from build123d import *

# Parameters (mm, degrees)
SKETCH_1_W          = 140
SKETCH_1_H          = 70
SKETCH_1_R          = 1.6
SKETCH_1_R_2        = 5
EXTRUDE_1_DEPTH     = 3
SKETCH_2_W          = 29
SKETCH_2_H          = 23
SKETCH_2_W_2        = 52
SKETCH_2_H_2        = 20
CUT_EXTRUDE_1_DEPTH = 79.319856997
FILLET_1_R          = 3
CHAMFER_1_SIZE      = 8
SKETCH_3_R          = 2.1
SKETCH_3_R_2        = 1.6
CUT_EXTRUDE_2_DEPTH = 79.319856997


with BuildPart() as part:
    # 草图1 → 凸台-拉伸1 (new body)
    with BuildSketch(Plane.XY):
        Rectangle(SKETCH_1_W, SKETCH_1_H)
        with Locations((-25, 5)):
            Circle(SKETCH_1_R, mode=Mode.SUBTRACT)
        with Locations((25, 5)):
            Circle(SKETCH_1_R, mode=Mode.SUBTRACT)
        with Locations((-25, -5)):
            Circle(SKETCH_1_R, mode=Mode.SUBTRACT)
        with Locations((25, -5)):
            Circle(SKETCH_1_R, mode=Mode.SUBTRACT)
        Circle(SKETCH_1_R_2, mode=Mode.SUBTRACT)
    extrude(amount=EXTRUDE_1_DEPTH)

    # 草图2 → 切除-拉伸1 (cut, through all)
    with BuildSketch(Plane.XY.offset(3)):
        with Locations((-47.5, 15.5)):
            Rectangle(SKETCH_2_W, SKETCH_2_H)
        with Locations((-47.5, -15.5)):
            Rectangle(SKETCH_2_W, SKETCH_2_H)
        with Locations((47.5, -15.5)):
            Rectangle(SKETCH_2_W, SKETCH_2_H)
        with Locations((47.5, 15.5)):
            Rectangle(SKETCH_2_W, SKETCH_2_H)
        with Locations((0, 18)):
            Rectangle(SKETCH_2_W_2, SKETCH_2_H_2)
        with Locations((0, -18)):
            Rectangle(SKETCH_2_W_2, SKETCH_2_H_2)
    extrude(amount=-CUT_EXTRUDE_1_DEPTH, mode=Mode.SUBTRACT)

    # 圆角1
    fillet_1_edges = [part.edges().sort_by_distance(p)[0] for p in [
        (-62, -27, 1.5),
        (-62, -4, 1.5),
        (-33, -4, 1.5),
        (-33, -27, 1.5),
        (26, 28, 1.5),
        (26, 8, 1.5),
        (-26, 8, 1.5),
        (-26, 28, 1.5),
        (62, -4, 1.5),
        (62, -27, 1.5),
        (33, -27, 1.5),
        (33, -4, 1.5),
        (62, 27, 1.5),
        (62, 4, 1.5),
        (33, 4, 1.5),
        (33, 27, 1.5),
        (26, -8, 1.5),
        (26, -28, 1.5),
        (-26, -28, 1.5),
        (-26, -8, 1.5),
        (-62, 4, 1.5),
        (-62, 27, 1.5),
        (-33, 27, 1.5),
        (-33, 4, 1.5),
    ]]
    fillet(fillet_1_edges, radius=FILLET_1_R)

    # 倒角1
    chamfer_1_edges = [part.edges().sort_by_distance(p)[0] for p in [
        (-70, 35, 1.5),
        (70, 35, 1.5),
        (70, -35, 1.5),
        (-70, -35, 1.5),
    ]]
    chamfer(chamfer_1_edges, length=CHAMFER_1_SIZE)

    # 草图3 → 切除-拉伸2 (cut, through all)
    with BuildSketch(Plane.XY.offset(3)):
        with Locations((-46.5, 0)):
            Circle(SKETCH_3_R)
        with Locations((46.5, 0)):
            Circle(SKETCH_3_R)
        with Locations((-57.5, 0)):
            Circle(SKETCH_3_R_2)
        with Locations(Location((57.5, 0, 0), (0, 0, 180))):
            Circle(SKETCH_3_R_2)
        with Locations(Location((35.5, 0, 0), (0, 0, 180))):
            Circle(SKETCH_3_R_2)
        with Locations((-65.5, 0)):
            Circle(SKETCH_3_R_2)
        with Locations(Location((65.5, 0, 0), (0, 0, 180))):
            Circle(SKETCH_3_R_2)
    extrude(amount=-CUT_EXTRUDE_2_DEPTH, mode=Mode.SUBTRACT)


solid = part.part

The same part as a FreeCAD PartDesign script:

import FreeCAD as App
import Part
import Sketcher
Q = App.Units.Quantity


def edges_at(feature, points):
    """Names of the edges that pass closest to the given points."""
    edges = feature.Shape.Edges
    near = lambda p: min(range(len(edges)), key=lambda i: edges[i].distToShape(Part.Vertex(*p))[0])
    return sorted({f"Edge{near(p) + 1}" for p in points})

doc = App.newDocument("Part")
body = doc.addObject("PartDesign::Body", "Body")

# Sketch on XY plane
sketch1 = body.newObject("Sketcher::SketchObject", "Sketch")
sketch1.AttachmentSupport = (doc.getObject("XY_Plane"), [""])
sketch1.MapMode = "FlatFace"
sketch1.addGeometry([
    Part.LineSegment(App.Vector(-70, 35, 0), App.Vector(-70, -35, 0)),  # 0
    Part.LineSegment(App.Vector(-70, -35, 0), App.Vector(70, -35, 0)),  # 1
    Part.LineSegment(App.Vector(70, -35, 0), App.Vector(70, 35, 0)),  # 2
    Part.LineSegment(App.Vector(70, 35, 0), App.Vector(-70, 35, 0)),  # 3
    Part.Circle(App.Vector(-25, -5, 0), App.Vector(0, 0, 1), 1.6),  # 4
    Part.Circle(App.Vector(25, -5, 0), App.Vector(0, 0, 1), 1.6),  # 5
    Part.Circle(App.Vector(-25, 5, 0), App.Vector(0, 0, 1), 1.6),  # 6
    Part.Circle(App.Vector(0, 0, 0), App.Vector(0, 0, 1), 5),  # 7
    Part.Circle(App.Vector(25, 5, 0), App.Vector(0, 0, 1), 1.6),  # 8
], False)
sketch1.addConstraint([
    Sketcher.Constraint("Coincident", 0, 2, 1, 1),
    Sketcher.Constraint("Coincident", 1, 2, 2, 1),
    Sketcher.Constraint("Coincident", 2, 2, 3, 1),
    Sketcher.Constraint("Coincident", 3, 2, 0, 1),
    Sketcher.Constraint("Vertical", 0),
    Sketcher.Constraint("Horizontal", 1),
    Sketcher.Constraint("Vertical", 2),
    Sketcher.Constraint("Horizontal", 3),
    Sketcher.Constraint("Coincident", 7, 3, -1, 1),
    Sketcher.Constraint("Equal", 4, 5),
    Sketcher.Constraint("Equal", 5, 6),
    Sketcher.Constraint("Equal", 6, 8),
    Sketcher.Constraint("Symmetric", 5, 3, 6, 3, -1, 1),
    Sketcher.Constraint("Symmetric", 4, 3, 8, 3, -1, 1),
    Sketcher.Constraint("Symmetric", 0, 2, 2, 2, -1, 1),
    Sketcher.Constraint("Symmetric", 4, 3, 5, 3, -2),
    Sketcher.Constraint("Diameter", 7, Q("10 mm")),
    Sketcher.Constraint("Diameter", 4, Q("3.2 mm")),
    Sketcher.Constraint("DistanceX", 1, 1, 1, 2, Q("140 mm")),
    Sketcher.Constraint("DistanceY", 0, 2, 0, 1, Q("70 mm")),
    Sketcher.Constraint("DistanceX", 4, 3, -1, 1, Q("25 mm")),
    Sketcher.Constraint("DistanceY", 4, 3, -1, 1, Q("5 mm")),
])
pad1 = body.newObject("PartDesign::Pad", "Pad")
pad1.Profile = sketch1
pad1.Length = 3

# Sketch on XY plane
sketch2 = body.newObject("Sketcher::SketchObject", "Sketch001")
sketch2.AttachmentSupport = (doc.getObject("XY_Plane"), [""])
sketch2.MapMode = "FlatFace"
sketch2.AttachmentOffset = App.Placement(App.Vector(0, 0, 3), App.Rotation())
sketch2.addGeometry([
    Part.LineSegment(App.Vector(-62, 27, 0), App.Vector(-62, 4, 0)),  # 0
    Part.LineSegment(App.Vector(-62, 4, 0), App.Vector(-33, 4, 0)),  # 1
    Part.LineSegment(App.Vector(-33, 4, 0), App.Vector(-33, 27, 0)),  # 2
    Part.LineSegment(App.Vector(-33, 27, 0), App.Vector(-62, 27, 0)),  # 3
    Part.LineSegment(App.Vector(-62, -4, 0), App.Vector(-62, -27, 0)),  # 4
    Part.LineSegment(App.Vector(-62, -27, 0), App.Vector(-33, -27, 0)),  # 5
    Part.LineSegment(App.Vector(-33, -27, 0), App.Vector(-33, -4, 0)),  # 6
    Part.LineSegment(App.Vector(-33, -4, 0), App.Vector(-62, -4, 0)),  # 7
    Part.LineSegment(App.Vector(33, -4, 0), App.Vector(33, -27, 0)),  # 8
    Part.LineSegment(App.Vector(33, -27, 0), App.Vector(62, -27, 0)),  # 9
    Part.LineSegment(App.Vector(62, -27, 0), App.Vector(62, -4, 0)),  # 10
    Part.LineSegment(App.Vector(62, -4, 0), App.Vector(33, -4, 0)),  # 11
    Part.LineSegment(App.Vector(33, 27, 0), App.Vector(33, 4, 0)),  # 12
    Part.LineSegment(App.Vector(33, 4, 0), App.Vector(62, 4, 0)),  # 13
    Part.LineSegment(App.Vector(62, 4, 0), App.Vector(62, 27, 0)),  # 14
    Part.LineSegment(App.Vector(62, 27, 0), App.Vector(33, 27, 0)),  # 15
    Part.LineSegment(App.Vector(-26, 28, 0), App.Vector(-26, 8, 0)),  # 16
    Part.LineSegment(App.Vector(-26, 8, 0), App.Vector(26, 8, 0)),  # 17
    Part.LineSegment(App.Vector(26, 8, 0), App.Vector(26, 28, 0)),  # 18
    Part.LineSegment(App.Vector(26, 28, 0), App.Vector(-26, 28, 0)),  # 19
    Part.LineSegment(App.Vector(-26, -8, 0), App.Vector(-26, -28, 0)),  # 20
    Part.LineSegment(App.Vector(-26, -28, 0), App.Vector(26, -28, 0)),  # 21
    Part.LineSegment(App.Vector(26, -28, 0), App.Vector(26, -8, 0)),  # 22
    Part.LineSegment(App.Vector(26, -8, 0), App.Vector(-26, -8, 0)),  # 23
], False)
sketch2.addConstraint([
    Sketcher.Constraint("Coincident", 0, 2, 1, 1),
    Sketcher.Constraint("Coincident", 1, 2, 2, 1),
    Sketcher.Constraint("Coincident", 2, 2, 3, 1),
    Sketcher.Constraint("Coincident", 3, 2, 0, 1),
    Sketcher.Constraint("Coincident", 4, 2, 5, 1),
    Sketcher.Constraint("Coincident", 5, 2, 6, 1),
    Sketcher.Constraint("Coincident", 6, 2, 7, 1),
    Sketcher.Constraint("Coincident", 7, 2, 4, 1),
    Sketcher.Constraint("Coincident", 8, 2, 9, 1),
    Sketcher.Constraint("Coincident", 9, 2, 10, 1),
    Sketcher.Constraint("Coincident", 10, 2, 11, 1),
    Sketcher.Constraint("Coincident", 11, 2, 8, 1),
    Sketcher.Constraint("Coincident", 12, 2, 13, 1),
    Sketcher.Constraint("Coincident", 13, 2, 14, 1),
    Sketcher.Constraint("Coincident", 14, 2, 15, 1),
    Sketcher.Constraint("Coincident", 15, 2, 12, 1),
    Sketcher.Constraint("Coincident", 16, 2, 17, 1),
    Sketcher.Constraint("Coincident", 17, 2, 18, 1),
    Sketcher.Constraint("Coincident", 18, 2, 19, 1),
    Sketcher.Constraint("Coincident", 19, 2, 16, 1),
    Sketcher.Constraint("Coincident", 20, 2, 21, 1),
    Sketcher.Constraint("Coincident", 21, 2, 22, 1),
    Sketcher.Constraint("Coincident", 22, 2, 23, 1),
    Sketcher.Constraint("Coincident", 23, 2, 20, 1),
    Sketcher.Constraint("Vertical", 0),
    Sketcher.Constraint("Horizontal", 1),
    Sketcher.Constraint("Vertical", 2),
    Sketcher.Constraint("Horizontal", 3),
    Sketcher.Constraint("Vertical", 4),
    Sketcher.Constraint("Horizontal", 5),
    Sketcher.Constraint("Vertical", 6),
    Sketcher.Constraint("Horizontal", 7),
    Sketcher.Constraint("Vertical", 8),
    Sketcher.Constraint("Horizontal", 9),
    Sketcher.Constraint("Vertical", 10),
    Sketcher.Constraint("Horizontal", 11),
    Sketcher.Constraint("Vertical", 12),
    Sketcher.Constraint("Horizontal", 13),
    Sketcher.Constraint("Vertical", 14),
    Sketcher.Constraint("Horizontal", 15),
    Sketcher.Constraint("Vertical", 16),
    Sketcher.Constraint("Horizontal", 17),
    Sketcher.Constraint("Vertical", 18),
    Sketcher.Constraint("Horizontal", 19),
    Sketcher.Constraint("Vertical", 20),
    Sketcher.Constraint("Horizontal", 21),
    Sketcher.Constraint("Vertical", 22),
    Sketcher.Constraint("Horizontal", 23),
    Sketcher.Constraint("Symmetric", 2, 2, 8, 2, -1, 1),
    Sketcher.Constraint("Symmetric", 0, 2, 10, 2, -1, 1),
    Sketcher.Constraint("Symmetric", 6, 2, 12, 2, -1, 1),
    Sketcher.Constraint("Symmetric", 4, 2, 14, 2, -1, 1),
    Sketcher.Constraint("Symmetric", 18, 2, 20, 2, -1, 1),
    Sketcher.Constraint("Symmetric", 16, 2, 22, 2, -1, 1),
    Sketcher.Constraint("Symmetric", 5, 2, 8, 2, -2),
    Sketcher.Constraint("Symmetric", 7, 2, 10, 2, -2),
    Sketcher.Constraint("Vertical", 19, 2, 20, 2),
    Sketcher.Constraint("DistanceX", 1, 1, 1, 2, Q("29 mm")),
    Sketcher.Constraint("DistanceX", 17, 1, 17, 2, Q("52 mm")),
    Sketcher.Constraint("DistanceY", 0, 2, 0, 1, Q("23 mm")),
    Sketcher.Constraint("DistanceY", 16, 2, 16, 1, Q("20 mm")),
    Sketcher.Constraint("DistanceX", 0, 2, -1, 1, Q("62 mm")),
    Sketcher.Constraint("DistanceY", -1, 1, 0, 2, Q("4 mm")),
    Sketcher.Constraint("DistanceY", -1, 1, 16, 2, Q("8 mm")),
])
pocket1 = body.newObject("PartDesign::Pocket", "Pocket")
pocket1.Profile = sketch2
pocket1.Type = "ThroughAll"
doc.recompute()

fillet = body.newObject("PartDesign::Fillet", "Fillet")
fillet.Base = (pocket1, edges_at(pocket1, [
    (-62, -27, 1.5),
    (-62, -4, 1.5),
    (-33, -4, 1.5),
    (-33, -27, 1.5),
    (26, 28, 1.5),
    (26, 8, 1.5),
    (-26, 8, 1.5),
    (-26, 28, 1.5),
    (62, -4, 1.5),
    (62, -27, 1.5),
    (33, -27, 1.5),
    (33, -4, 1.5),
    (62, 27, 1.5),
    (62, 4, 1.5),
    (33, 4, 1.5),
    (33, 27, 1.5),
    (26, -8, 1.5),
    (26, -28, 1.5),
    (-26, -28, 1.5),
    (-26, -8, 1.5),
    (-62, 4, 1.5),
    (-62, 27, 1.5),
    (-33, 27, 1.5),
    (-33, 4, 1.5),
]))
fillet.Radius = 3
doc.recompute()

chamfer = body.newObject("PartDesign::Chamfer", "Chamfer")
chamfer.Base = (fillet, edges_at(fillet, [
    (-70, 35, 1.5),
    (70, 35, 1.5),
    (70, -35, 1.5),
    (-70, -35, 1.5),
]))
chamfer.Size = 8

# Sketch on XY plane
sketch3 = body.newObject("Sketcher::SketchObject", "Sketch002")
sketch3.AttachmentSupport = (doc.getObject("XY_Plane"), [""])
sketch3.MapMode = "FlatFace"
sketch3.AttachmentOffset = App.Placement(App.Vector(0, 0, 3), App.Rotation())
sketch3.addGeometry([
    Part.Circle(App.Vector(-46.5, 0, 0), App.Vector(0, 0, 1), 2.1),  # 0
    Part.Circle(App.Vector(46.5, 0, 0), App.Vector(0, 0, 1), 2.1),  # 1
    Part.Circle(App.Vector(-57.5, 0, 0), App.Vector(0, 0, 1), 1.6),  # 2
    Part.Circle(App.Vector(57.5, 0, 0), App.Vector(0, 0, 1), 1.6),  # 3
    Part.Circle(App.Vector(35.5, 0, 0), App.Vector(0, 0, 1), 1.6),  # 4
    Part.Circle(App.Vector(-65.5, 0, 0), App.Vector(0, 0, 1), 1.6),  # 5
    Part.Circle(App.Vector(65.5, 0, 0), App.Vector(0, 0, 1), 1.6),  # 6
], False)
sketch3.addConstraint([
    Sketcher.Constraint("Equal", 0, 1),
    Sketcher.Constraint("Equal", 2, 3),
    Sketcher.Constraint("Equal", 3, 4),
    Sketcher.Constraint("Equal", 4, 5),
    Sketcher.Constraint("Equal", 5, 6),
    Sketcher.Constraint("Symmetric", 0, 3, 1, 3, -1, 1),
    Sketcher.Constraint("Symmetric", 2, 3, 3, 3, -1, 1),
    Sketcher.Constraint("Symmetric", 5, 3, 6, 3, -1, 1),
    Sketcher.Constraint("PointOnObject", 0, 3, -1),
    Sketcher.Constraint("PointOnObject", 2, 3, -1),
    Sketcher.Constraint("PointOnObject", 4, 3, -1),
    Sketcher.Constraint("PointOnObject", 5, 3, -1),
    Sketcher.Constraint("Diameter", 0, Q("4.2 mm")),
    Sketcher.Constraint("Diameter", 2, Q("3.2 mm")),
    Sketcher.Constraint("DistanceX", 0, 3, 1, 3, Q("93 mm")),
    Sketcher.Constraint("DistanceX", 2, 3, 0, 3, Q("11 mm")),
    Sketcher.Constraint("DistanceX", 4, 3, 1, 3, Q("11 mm")),
    Sketcher.Constraint("DistanceX", 5, 3, 2, 3, Q("8 mm")),
])
pocket2 = body.newObject("PartDesign::Pocket", "Pocket001")
pocket2.Profile = sketch3
pocket2.Type = "ThroughAll"

doc.recompute()
